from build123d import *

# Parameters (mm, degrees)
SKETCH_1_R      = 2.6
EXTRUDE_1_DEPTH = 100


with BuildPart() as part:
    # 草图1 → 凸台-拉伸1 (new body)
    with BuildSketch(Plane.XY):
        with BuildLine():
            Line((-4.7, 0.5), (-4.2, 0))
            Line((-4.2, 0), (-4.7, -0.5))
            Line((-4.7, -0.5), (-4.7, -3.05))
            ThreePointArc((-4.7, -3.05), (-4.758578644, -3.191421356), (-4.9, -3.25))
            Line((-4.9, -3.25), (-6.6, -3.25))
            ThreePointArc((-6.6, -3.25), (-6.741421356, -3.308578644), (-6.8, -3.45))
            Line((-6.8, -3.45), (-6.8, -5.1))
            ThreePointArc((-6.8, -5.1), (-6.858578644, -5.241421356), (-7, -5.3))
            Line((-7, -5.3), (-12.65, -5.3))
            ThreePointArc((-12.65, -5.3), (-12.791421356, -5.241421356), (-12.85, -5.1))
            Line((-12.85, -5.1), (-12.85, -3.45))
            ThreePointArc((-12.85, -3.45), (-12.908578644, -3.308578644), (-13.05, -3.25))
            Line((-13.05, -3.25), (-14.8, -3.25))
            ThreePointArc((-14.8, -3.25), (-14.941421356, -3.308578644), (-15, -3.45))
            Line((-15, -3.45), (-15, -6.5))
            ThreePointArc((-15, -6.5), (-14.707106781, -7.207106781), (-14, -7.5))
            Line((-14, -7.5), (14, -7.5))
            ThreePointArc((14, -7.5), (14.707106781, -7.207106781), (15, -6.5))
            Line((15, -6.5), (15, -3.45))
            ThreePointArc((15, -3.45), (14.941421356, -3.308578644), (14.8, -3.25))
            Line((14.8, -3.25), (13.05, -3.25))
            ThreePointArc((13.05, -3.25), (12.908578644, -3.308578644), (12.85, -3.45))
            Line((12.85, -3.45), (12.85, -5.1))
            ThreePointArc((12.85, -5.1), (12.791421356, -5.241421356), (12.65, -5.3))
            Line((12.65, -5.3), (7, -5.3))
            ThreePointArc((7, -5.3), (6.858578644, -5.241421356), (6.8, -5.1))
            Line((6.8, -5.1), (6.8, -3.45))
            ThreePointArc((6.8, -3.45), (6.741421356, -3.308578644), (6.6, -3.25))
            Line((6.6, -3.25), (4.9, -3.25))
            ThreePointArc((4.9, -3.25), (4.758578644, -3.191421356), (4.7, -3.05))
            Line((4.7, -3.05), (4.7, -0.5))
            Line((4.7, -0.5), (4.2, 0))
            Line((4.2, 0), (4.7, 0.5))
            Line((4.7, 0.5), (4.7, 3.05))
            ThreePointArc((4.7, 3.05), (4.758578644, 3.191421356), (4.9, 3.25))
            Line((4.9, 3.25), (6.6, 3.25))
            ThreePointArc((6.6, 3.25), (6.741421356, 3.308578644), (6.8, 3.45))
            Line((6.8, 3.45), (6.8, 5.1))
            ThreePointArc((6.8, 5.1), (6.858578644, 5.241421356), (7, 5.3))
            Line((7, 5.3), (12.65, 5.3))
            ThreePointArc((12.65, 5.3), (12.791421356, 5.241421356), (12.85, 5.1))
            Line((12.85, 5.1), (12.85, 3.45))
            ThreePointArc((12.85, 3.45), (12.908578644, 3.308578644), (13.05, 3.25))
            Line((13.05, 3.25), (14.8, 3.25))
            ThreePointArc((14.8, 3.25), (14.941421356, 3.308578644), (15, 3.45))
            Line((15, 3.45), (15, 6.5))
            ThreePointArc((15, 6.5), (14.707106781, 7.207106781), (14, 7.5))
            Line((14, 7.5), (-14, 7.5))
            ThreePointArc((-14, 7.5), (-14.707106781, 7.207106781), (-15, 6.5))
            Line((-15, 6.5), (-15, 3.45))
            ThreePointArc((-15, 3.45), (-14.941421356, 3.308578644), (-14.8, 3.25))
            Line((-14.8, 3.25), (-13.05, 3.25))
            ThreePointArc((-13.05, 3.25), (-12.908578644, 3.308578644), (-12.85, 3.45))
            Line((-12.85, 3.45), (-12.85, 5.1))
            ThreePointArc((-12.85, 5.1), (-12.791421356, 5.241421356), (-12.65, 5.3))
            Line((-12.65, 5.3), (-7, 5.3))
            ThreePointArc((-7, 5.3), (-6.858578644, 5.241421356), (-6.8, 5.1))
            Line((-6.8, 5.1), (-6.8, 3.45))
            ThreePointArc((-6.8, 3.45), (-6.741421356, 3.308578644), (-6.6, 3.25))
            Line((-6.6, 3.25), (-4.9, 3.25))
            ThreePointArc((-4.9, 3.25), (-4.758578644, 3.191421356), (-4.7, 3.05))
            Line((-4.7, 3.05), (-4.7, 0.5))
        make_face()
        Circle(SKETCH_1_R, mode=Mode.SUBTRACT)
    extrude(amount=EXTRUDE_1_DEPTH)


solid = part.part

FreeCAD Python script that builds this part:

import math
import FreeCAD as App
import Part
import Sketcher
Q = App.Units.Quantity

doc = App.newDocument("Part")
body = doc.addObject("PartDesign::Body", "Body")

# Sketch on XY plane
sketch1 = body.newObject("Sketcher::SketchObject", "Sketch")
sketch1.AttachmentSupport = (doc.getObject("XY_Plane"), [""])
sketch1.MapMode = "FlatFace"
sketch1.addGeometry([
    Part.LineSegment(App.Vector(-4.7, 0.5, 0), App.Vector(-4.2, 0, 0)),  # 0
    Part.LineSegment(App.Vector(-4.2, 0, 0), App.Vector(-4.7, -0.5, 0)),  # 1
    Part.LineSegment(App.Vector(-4.7, -0.5, 0), App.Vector(-4.7, -3.05, 0)),  # 2
    Part.ArcOfCircle(Part.Circle(App.Vector(-4.9, -3.05, 0), App.Vector(0, 0, 1), 0.2), math.radians(-90), math.radians(0)),  # 3
    Part.LineSegment(App.Vector(-4.9, -3.25, 0), App.Vector(-6.6, -3.25, 0)),  # 4
    Part.ArcOfCircle(Part.Circle(App.Vector(-6.6, -3.45, 0), App.Vector(0, 0, 1), 0.2), math.radians(90), math.radians(180)),  # 5
    Part.LineSegment(App.Vector(-6.8, -3.45, 0), App.Vector(-6.8, -5.1, 0)),  # 6
    Part.ArcOfCircle(Part.Circle(App.Vector(-7, -5.1, 0), App.Vector(0, 0, 1), 0.2), math.radians(-90), math.radians(0)),  # 7
    Part.LineSegment(App.Vector(-7, -5.3, 0), App.Vector(-12.65, -5.3, 0)),  # 8
    Part.ArcOfCircle(Part.Circle(App.Vector(-12.65, -5.1, 0), App.Vector(0, 0, 1), 0.2), math.radians(-180), math.radians(-90)),  # 9
    Part.LineSegment(App.Vector(-12.85, -5.1, 0), App.Vector(-12.85, -3.45, 0)),  # 10
    Part.ArcOfCircle(Part.Circle(App.Vector(-13.05, -3.45, 0), App.Vector(0, 0, 1), 0.2), math.radians(0), math.radians(90)),  # 11
    Part.LineSegment(App.Vector(-13.05, -3.25, 0), App.Vector(-14.8, -3.25, 0)),  # 12
    Part.ArcOfCircle(Part.Circle(App.Vector(-14.8, -3.45, 0), App.Vector(0, 0, 1), 0.2), math.radians(90), math.radians(180)),  # 13
    Part.LineSegment(App.Vector(-15, -3.45, 0), App.Vector(-15, -6.5, 0)),  # 14
    Part.ArcOfCircle(Part.Circle(App.Vector(-14, -6.5, 0), App.Vector(0, 0, 1), 1), math.radians(-180), math.radians(-90)),  # 15
    Part.LineSegment(App.Vector(-14, -7.5, 0), App.Vector(14, -7.5, 0)),  # 16
    Part.ArcOfCircle(Part.Circle(App.Vector(14, -6.5, 0), App.Vector(0, 0, 1), 1), math.radians(-90), math.radians(0)),  # 17
    Part.LineSegment(App.Vector(15, -6.5, 0), App.Vector(15, -3.45, 0)),  # 18
    Part.ArcOfCircle(Part.Circle(App.Vector(14.8, -3.45, 0), App.Vector(0, 0, 1), 0.2), math.radians(0), math.radians(90)),  # 19
    Part.LineSegment(App.Vector(14.8, -3.25, 0), App.Vector(13.05, -3.25, 0)),  # 20
    Part.ArcOfCircle(Part.Circle(App.Vector(13.05, -3.45, 0), App.Vector(0, 0, 1), 0.2), math.radians(90), math.radians(180)),  # 21
    Part.LineSegment(App.Vector(12.85, -3.45, 0), App.Vector(12.85, -5.1, 0)),  # 22
    Part.ArcOfCircle(Part.Circle(App.Vector(12.65, -5.1, 0), App.Vector(0, 0, 1), 0.2), math.radians(-90), math.radians(0)),  # 23
    Part.LineSegment(App.Vector(12.65, -5.3, 0), App.Vector(7, -5.3, 0)),  # 24
    Part.ArcOfCircle(Part.Circle(App.Vector(7, -5.1, 0), App.Vector(0, 0, 1), 0.2), math.radians(-180), math.radians(-90)),  # 25
    Part.LineSegment(App.Vector(6.8, -5.1, 0), App.Vector(6.8, -3.45, 0)),  # 26
    Part.ArcOfCircle(Part.Circle(App.Vector(6.6, -3.45, 0), App.Vector(0, 0, 1), 0.2), math.radians(0), math.radians(90)),  # 27
    Part.LineSegment(App.Vector(6.6, -3.25, 0), App.Vector(4.9, -3.25, 0)),  # 28
    Part.ArcOfCircle(Part.Circle(App.Vector(4.9, -3.05, 0), App.Vector(0, 0, 1), 0.2), math.radians(-180), math.radians(-90)),  # 29
    Part.LineSegment(App.Vector(4.7, -3.05, 0), App.Vector(4.7, -0.5, 0)),  # 30
    Part.LineSegment(App.Vector(4.7, -0.5, 0), App.Vector(4.2, 0, 0)),  # 31
    Part.LineSegment(App.Vector(4.2, 0, 0), App.Vector(4.7, 0.5, 0)),  # 32
    Part.LineSegment(App.Vector(4.7, 0.5, 0), App.Vector(4.7, 3.05, 0)),  # 33
    Part.ArcOfCircle(Part.Circle(App.Vector(4.9, 3.05, 0), App.Vector(0, 0, 1), 0.2), math.radians(90), math.radians(180)),  # 34
    Part.LineSegment(App.Vector(4.9, 3.25, 0), App.Vector(6.6, 3.25, 0)),  # 35
    Part.ArcOfCircle(Part.Circle(App.Vector(6.6, 3.45, 0), App.Vector(0, 0, 1), 0.2), math.radians(-90), math.radians(0)),  # 36
    Part.LineSegment(App.Vector(6.8, 3.45, 0), App.Vector(6.8, 5.1, 0)),  # 37
    Part.ArcOfCircle(Part.Circle(App.Vector(7, 5.1, 0), App.Vector(0, 0, 1), 0.2), math.radians(90), math.radians(180)),  # 38
    Part.LineSegment(App.Vector(7, 5.3, 0), App.Vector(12.65, 5.3, 0)),  # 39
    Part.ArcOfCircle(Part.Circle(App.Vector(12.65, 5.1, 0), App.Vector(0, 0, 1), 0.2), math.radians(0), math.radians(90)),  # 40
    Part.LineSegment(App.Vector(12.85, 5.1, 0), App.Vector(12.85, 3.45, 0)),  # 41
    Part.ArcOfCircle(Part.Circle(App.Vector(13.05, 3.45, 0), App.Vector(0, 0, 1), 0.2), math.radians(-180), math.radians(-90)),  # 42
    Part.LineSegment(App.Vector(13.05, 3.25, 0), App.Vector(14.8, 3.25, 0)),  # 43
    Part.ArcOfCircle(Part.Circle(App.Vector(14.8, 3.45, 0), App.Vector(0, 0, 1), 0.2), math.radians(-90), math.radians(0)),  # 44
    Part.LineSegment(App.Vector(15, 3.45, 0), App.Vector(15, 6.5, 0)),  # 45
    Part.ArcOfCircle(Part.Circle(App.Vector(14, 6.5, 0), App.Vector(0, 0, 1), 1), math.radians(0), math.radians(90)),  # 46
    Part.LineSegment(App.Vector(14, 7.5, 0), App.Vector(-14, 7.5, 0)),  # 47
    Part.ArcOfCircle(Part.Circle(App.Vector(-14, 6.5, 0), App.Vector(0, 0, 1), 1), math.radians(90), math.radians(180)),  # 48
    Part.LineSegment(App.Vector(-15, 6.5, 0), App.Vector(-15, 3.45, 0)),  # 49
    Part.ArcOfCircle(Part.Circle(App.Vector(-14.8, 3.45, 0), App.Vector(0, 0, 1), 0.2), math.radians(-180), math.radians(-90)),  # 50
    Part.LineSegment(App.Vector(-14.8, 3.25, 0), App.Vector(-13.05, 3.25, 0)),  # 51
    Part.ArcOfCircle(Part.Circle(App.Vector(-13.05, 3.45, 0), App.Vector(0, 0, 1), 0.2), math.radians(-90), math.radians(0)),  # 52
    Part.LineSegment(App.Vector(-12.85, 3.45, 0), App.Vector(-12.85, 5.1, 0)),  # 53
    Part.ArcOfCircle(Part.Circle(App.Vector(-12.65, 5.1, 0), App.Vector(0, 0, 1), 0.2), math.radians(90), math.radians(180)),  # 54
    Part.LineSegment(App.Vector(-12.65, 5.3, 0), App.Vector(-7, 5.3, 0)),  # 55
    Part.ArcOfCircle(Part.Circle(App.Vector(-7, 5.1, 0), App.Vector(0, 0, 1), 0.2), math.radians(0), math.radians(90)),  # 56
    Part.LineSegment(App.Vector(-6.8, 5.1, 0), App.Vector(-6.8, 3.45, 0)),  # 57
    Part.ArcOfCircle(Part.Circle(App.Vector(-6.6, 3.45, 0), App.Vector(0, 0, 1), 0.2), math.radians(-180), math.radians(-90)),  # 58
    Part.LineSegment(App.Vector(-6.6, 3.25, 0), App.Vector(-4.9, 3.25, 0)),  # 59
    Part.ArcOfCircle(Part.Circle(App.Vector(-4.9, 3.05, 0), App.Vector(0, 0, 1), 0.2), math.radians(0), math.radians(90)),  # 60
    Part.LineSegment(App.Vector(-4.7, 3.05, 0), App.Vector(-4.7, 0.5, 0)),  # 61
    Part.Circle(App.Vector(0, 0, 0), App.Vector(0, 0, 1), 2.6),  # 62
], False)
sketch1.addConstraint([
    Sketcher.Constraint("Coincident", 0, 2, 1, 1),
    Sketcher.Constraint("Coincident", 1, 2, 2, 1),
    Sketcher.Constraint("Tangent", 2, 2, 3, 2),
    Sketcher.Constraint("Tangent", 3, 1, 4, 1),
    Sketcher.Constraint("Tangent", 4, 2, 5, 1),
    Sketcher.Constraint("Tangent", 5, 2, 6, 1),
    Sketcher.Constraint("Tangent", 6, 2, 7, 2),
    Sketcher.Constraint("Tangent", 7, 1, 8, 1),
    Sketcher.Constraint("Tangent", 8, 2, 9, 2),
    Sketcher.Constraint("Tangent", 9, 1, 10, 1),
    Sketcher.Constraint("Tangent", 10, 2, 11, 1),
    Sketcher.Constraint("Tangent", 11, 2, 12, 1),
    Sketcher.Constraint("Tangent", 12, 2, 13, 1),
    Sketcher.Constraint("Tangent", 13, 2, 14, 1),
    Sketcher.Constraint("Tangent", 14, 2, 15, 1),
    Sketcher.Constraint("Tangent", 15, 2, 16, 1),
    Sketcher.Constraint("Tangent", 16, 2, 17, 1),
    Sketcher.Constraint("Tangent", 17, 2, 18, 1),
    Sketcher.Constraint("Tangent", 18, 2, 19, 1),
    Sketcher.Constraint("Tangent", 19, 2, 20, 1),
    Sketcher.Constraint("Tangent", 20, 2, 21, 1),
    Sketcher.Constraint("Tangent", 21, 2, 22, 1),
    Sketcher.Constraint("Tangent", 22, 2, 23, 2),
    Sketcher.Constraint("Tangent", 23, 1, 24, 1),
    Sketcher.Constraint("Tangent", 24, 2, 25, 2),
    Sketcher.Constraint("Tangent", 25, 1, 26, 1),
    Sketcher.Constraint("Tangent", 26, 2, 27, 1),
    Sketcher.Constraint("Tangent", 27, 2, 28, 1),
    Sketcher.Constraint("Tangent", 28, 2, 29, 2),
    Sketcher.Constraint("Tangent", 29, 1, 30, 1),
    Sketcher.Constraint("Coincident", 30, 2, 31, 1),
    Sketcher.Constraint("Coincident", 31, 2, 32, 1),
    Sketcher.Constraint("Coincident", 32, 2, 33, 1),
    Sketcher.Constraint("Tangent", 33, 2, 34, 2),
    Sketcher.Constraint("Tangent", 34, 1, 35, 1),
    Sketcher.Constraint("Tangent", 35, 2, 36, 1),
    Sketcher.Constraint("Tangent", 36, 2, 37, 1),
    Sketcher.Constraint("Tangent", 37, 2, 38, 2),
    Sketcher.Constraint("Tangent", 38, 1, 39, 1),
    Sketcher.Constraint("Tangent", 39, 2, 40, 2),
    Sketcher.Constraint("Tangent", 40, 1, 41, 1),
    Sketcher.Constraint("Tangent", 41, 2, 42, 1),
    Sketcher.Constraint("Tangent", 42, 2, 43, 1),
    Sketcher.Constraint("Tangent", 43, 2, 44, 1),
    Sketcher.Constraint("Tangent", 44, 2, 45, 1),
    Sketcher.Constraint("Tangent", 45, 2, 46, 1),
    Sketcher.Constraint("Tangent", 46, 2, 47, 1),
    Sketcher.Constraint("Tangent", 47, 2, 48, 1),
    Sketcher.Constraint("Tangent", 48, 2, 49, 1),
    Sketcher.Constraint("Tangent", 49, 2, 50, 1),
    Sketcher.Constraint("Tangent", 50, 2, 51, 1),
    Sketcher.Constraint("Tangent", 51, 2, 52, 1),
    Sketcher.Constraint("Tangent", 52, 2, 53, 1),
    Sketcher.Constraint("Tangent", 53, 2, 54, 2),
    Sketcher.Constraint("Tangent", 54, 1, 55, 1),
    Sketcher.Constraint("Tangent", 55, 2, 56, 2),
    Sketcher.Constraint("Tangent", 56, 1, 57, 1),
    Sketcher.Constraint("Tangent", 57, 2, 58, 1),
    Sketcher.Constraint("Tangent", 58, 2, 59, 1),
    Sketcher.Constraint("Tangent", 59, 2, 60, 2),
    Sketcher.Constraint("Tangent", 60, 1, 61, 1),
    Sketcher.Constraint("Coincident", 61, 2, 0, 1),
    Sketcher.Constraint("Vertical", 2),
    Sketcher.Constraint("Horizontal", 4),
    Sketcher.Constraint("Vertical", 6),
    Sketcher.Constraint("Horizontal", 8),
    Sketcher.Constraint("Vertical", 10),
    Sketcher.Constraint("Horizontal", 12),
    Sketcher.Constraint("Vertical", 14),
    Sketcher.Constraint("Horizontal", 16),
    Sketcher.Constraint("Vertical", 18),
    Sketcher.Constraint("Horizontal", 20),
    Sketcher.Constraint("Vertical", 22),
    Sketcher.Constraint("Horizontal", 24),
    Sketcher.Constraint("Vertical", 26),
    Sketcher.Constraint("Horizontal", 28),
    Sketcher.Constraint("Vertical", 30),
    Sketcher.Constraint("Vertical", 33),
    Sketcher.Constraint("Horizontal", 35),
    Sketcher.Constraint("Vertical", 37),
    Sketcher.Constraint("Horizontal", 39),
    Sketcher.Constraint("Vertical", 41),
    Sketcher.Constraint("Horizontal", 43),
    Sketcher.Constraint("Vertical", 45),
    Sketcher.Constraint("Horizontal", 47),
    Sketcher.Constraint("Vertical", 49),
    Sketcher.Constraint("Horizontal", 51),
    Sketcher.Constraint("Vertical", 53),
    Sketcher.Constraint("Horizontal", 55),
    Sketcher.Constraint("Vertical", 57),
    Sketcher.Constraint("Horizontal", 59),
    Sketcher.Constraint("Vertical", 61),
    Sketcher.Constraint("Coincident", 62, 3, -1, 1),
    Sketcher.Constraint("Equal", 3, 5),
    Sketcher.Constraint("Equal", 5, 7),
    Sketcher.Constraint("Equal", 7, 9),
    Sketcher.Constraint("Equal", 9, 11),
    Sketcher.Constraint("Equal", 11, 13),
    Sketcher.Constraint("Equal", 15, 17),
    Sketcher.Constraint("Equal", 13, 19),
    Sketcher.Constraint("Equal", 19, 21),
    Sketcher.Constraint("Equal", 21, 23),
    Sketcher.Constraint("Equal", 23, 25),
    Sketcher.Constraint("Equal", 25, 27),
    Sketcher.Constraint("Equal", 27, 29),
    Sketcher.Constraint("Equal", 29, 34),
    Sketcher.Constraint("Equal", 34, 36),
    Sketcher.Constraint("Equal", 36, 38),
    Sketcher.Constraint("Equal", 38, 40),
    Sketcher.Constraint("Equal", 40, 42),
    Sketcher.Constraint("Equal", 42, 44),
    Sketcher.Constraint("Equal", 17, 46),
    Sketcher.Constraint("Equal", 46, 48),
    Sketcher.Constraint("Equal", 44, 50),
    Sketcher.Constraint("Equal", 50, 52),
    Sketcher.Constraint("Equal", 52, 54),
    Sketcher.Constraint("Equal", 54, 56),
    Sketcher.Constraint("Equal", 56, 58),
    Sketcher.Constraint("Equal", 58, 60),
    Sketcher.Constraint("Symmetric", 3, 3, 34, 3, -1, 1),
    Sketcher.Constraint("Symmetric", 7, 3, 38, 3, -1, 1),
    Sketcher.Constraint("Symmetric", 11, 3, 42, 3, -1, 1),
    Sketcher.Constraint("Symmetric", 15, 3, 46, 3, -1, 1),
    Sketcher.Constraint("Symmetric", 19, 3, 50, 3, -1, 1),
    Sketcher.Constraint("Symmetric", 23, 3, 54, 3, -1, 1),
    Sketcher.Constraint("Symmetric", 27, 3, 58, 3, -1, 1),
    Sketcher.Constraint("Symmetric", 0, 2, 31, 2, -1, 1),
    Sketcher.Constraint("Symmetric", 30, 2, 61, 2, -1, 1),
    Sketcher.Constraint("Symmetric", 13, 3, 19, 3, -2),
    Sketcher.Constraint("Symmetric", 9, 3, 23, 3, -2),
    Sketcher.Constraint("Symmetric", 5, 3, 27, 3, -2),
    Sketcher.Constraint("Symmetric", 1, 2, 30, 2, -2),
    Sketcher.Constraint("PointOnObject", 0, 2, -1),
    Sketcher.Constraint("Perpendicular", 0, 1),
    Sketcher.Constraint("Perpendicular", 31, 32),
    Sketcher.Constraint("Horizontal", 5, 3, 11, 3),
    Sketcher.Constraint("Radius", 15, Q("1 mm")),
    Sketcher.Constraint("Diameter", 62, Q("5.2 mm")),
    Sketcher.Constraint("Radius", 3, Q("0.2 mm")),
    Sketcher.Constraint("DistanceX", 16, 1, 16, 2, Q("28 mm")),
    Sketcher.Constraint("DistanceX", 4, 2, 4, 1, Q("1.7 mm")),
    Sketcher.Constraint("DistanceX", 7, 3, -1, 1, Q("7 mm")),
    Sketcher.Constraint("DistanceX", 8, 2, 8, 1, Q("5.65 mm")),
    Sketcher.Constraint("DistanceY", 2, 2, 2, 1, Q("2.55 mm")),
    Sketcher.Constraint("DistanceY", 6, 2, 6, 1, Q("1.65 mm")),
    Sketcher.Constraint("DistanceY", 14, 2, 14, 1, Q("3.05 mm")),
    Sketcher.Constraint("DistanceY", 7, 3, -1, 1, Q("5.1 mm")),
])
pad1 = body.newObject("PartDesign::Pad", "Pad")
pad1.Profile = sketch1
pad1.Length = 100

doc.recompute()
